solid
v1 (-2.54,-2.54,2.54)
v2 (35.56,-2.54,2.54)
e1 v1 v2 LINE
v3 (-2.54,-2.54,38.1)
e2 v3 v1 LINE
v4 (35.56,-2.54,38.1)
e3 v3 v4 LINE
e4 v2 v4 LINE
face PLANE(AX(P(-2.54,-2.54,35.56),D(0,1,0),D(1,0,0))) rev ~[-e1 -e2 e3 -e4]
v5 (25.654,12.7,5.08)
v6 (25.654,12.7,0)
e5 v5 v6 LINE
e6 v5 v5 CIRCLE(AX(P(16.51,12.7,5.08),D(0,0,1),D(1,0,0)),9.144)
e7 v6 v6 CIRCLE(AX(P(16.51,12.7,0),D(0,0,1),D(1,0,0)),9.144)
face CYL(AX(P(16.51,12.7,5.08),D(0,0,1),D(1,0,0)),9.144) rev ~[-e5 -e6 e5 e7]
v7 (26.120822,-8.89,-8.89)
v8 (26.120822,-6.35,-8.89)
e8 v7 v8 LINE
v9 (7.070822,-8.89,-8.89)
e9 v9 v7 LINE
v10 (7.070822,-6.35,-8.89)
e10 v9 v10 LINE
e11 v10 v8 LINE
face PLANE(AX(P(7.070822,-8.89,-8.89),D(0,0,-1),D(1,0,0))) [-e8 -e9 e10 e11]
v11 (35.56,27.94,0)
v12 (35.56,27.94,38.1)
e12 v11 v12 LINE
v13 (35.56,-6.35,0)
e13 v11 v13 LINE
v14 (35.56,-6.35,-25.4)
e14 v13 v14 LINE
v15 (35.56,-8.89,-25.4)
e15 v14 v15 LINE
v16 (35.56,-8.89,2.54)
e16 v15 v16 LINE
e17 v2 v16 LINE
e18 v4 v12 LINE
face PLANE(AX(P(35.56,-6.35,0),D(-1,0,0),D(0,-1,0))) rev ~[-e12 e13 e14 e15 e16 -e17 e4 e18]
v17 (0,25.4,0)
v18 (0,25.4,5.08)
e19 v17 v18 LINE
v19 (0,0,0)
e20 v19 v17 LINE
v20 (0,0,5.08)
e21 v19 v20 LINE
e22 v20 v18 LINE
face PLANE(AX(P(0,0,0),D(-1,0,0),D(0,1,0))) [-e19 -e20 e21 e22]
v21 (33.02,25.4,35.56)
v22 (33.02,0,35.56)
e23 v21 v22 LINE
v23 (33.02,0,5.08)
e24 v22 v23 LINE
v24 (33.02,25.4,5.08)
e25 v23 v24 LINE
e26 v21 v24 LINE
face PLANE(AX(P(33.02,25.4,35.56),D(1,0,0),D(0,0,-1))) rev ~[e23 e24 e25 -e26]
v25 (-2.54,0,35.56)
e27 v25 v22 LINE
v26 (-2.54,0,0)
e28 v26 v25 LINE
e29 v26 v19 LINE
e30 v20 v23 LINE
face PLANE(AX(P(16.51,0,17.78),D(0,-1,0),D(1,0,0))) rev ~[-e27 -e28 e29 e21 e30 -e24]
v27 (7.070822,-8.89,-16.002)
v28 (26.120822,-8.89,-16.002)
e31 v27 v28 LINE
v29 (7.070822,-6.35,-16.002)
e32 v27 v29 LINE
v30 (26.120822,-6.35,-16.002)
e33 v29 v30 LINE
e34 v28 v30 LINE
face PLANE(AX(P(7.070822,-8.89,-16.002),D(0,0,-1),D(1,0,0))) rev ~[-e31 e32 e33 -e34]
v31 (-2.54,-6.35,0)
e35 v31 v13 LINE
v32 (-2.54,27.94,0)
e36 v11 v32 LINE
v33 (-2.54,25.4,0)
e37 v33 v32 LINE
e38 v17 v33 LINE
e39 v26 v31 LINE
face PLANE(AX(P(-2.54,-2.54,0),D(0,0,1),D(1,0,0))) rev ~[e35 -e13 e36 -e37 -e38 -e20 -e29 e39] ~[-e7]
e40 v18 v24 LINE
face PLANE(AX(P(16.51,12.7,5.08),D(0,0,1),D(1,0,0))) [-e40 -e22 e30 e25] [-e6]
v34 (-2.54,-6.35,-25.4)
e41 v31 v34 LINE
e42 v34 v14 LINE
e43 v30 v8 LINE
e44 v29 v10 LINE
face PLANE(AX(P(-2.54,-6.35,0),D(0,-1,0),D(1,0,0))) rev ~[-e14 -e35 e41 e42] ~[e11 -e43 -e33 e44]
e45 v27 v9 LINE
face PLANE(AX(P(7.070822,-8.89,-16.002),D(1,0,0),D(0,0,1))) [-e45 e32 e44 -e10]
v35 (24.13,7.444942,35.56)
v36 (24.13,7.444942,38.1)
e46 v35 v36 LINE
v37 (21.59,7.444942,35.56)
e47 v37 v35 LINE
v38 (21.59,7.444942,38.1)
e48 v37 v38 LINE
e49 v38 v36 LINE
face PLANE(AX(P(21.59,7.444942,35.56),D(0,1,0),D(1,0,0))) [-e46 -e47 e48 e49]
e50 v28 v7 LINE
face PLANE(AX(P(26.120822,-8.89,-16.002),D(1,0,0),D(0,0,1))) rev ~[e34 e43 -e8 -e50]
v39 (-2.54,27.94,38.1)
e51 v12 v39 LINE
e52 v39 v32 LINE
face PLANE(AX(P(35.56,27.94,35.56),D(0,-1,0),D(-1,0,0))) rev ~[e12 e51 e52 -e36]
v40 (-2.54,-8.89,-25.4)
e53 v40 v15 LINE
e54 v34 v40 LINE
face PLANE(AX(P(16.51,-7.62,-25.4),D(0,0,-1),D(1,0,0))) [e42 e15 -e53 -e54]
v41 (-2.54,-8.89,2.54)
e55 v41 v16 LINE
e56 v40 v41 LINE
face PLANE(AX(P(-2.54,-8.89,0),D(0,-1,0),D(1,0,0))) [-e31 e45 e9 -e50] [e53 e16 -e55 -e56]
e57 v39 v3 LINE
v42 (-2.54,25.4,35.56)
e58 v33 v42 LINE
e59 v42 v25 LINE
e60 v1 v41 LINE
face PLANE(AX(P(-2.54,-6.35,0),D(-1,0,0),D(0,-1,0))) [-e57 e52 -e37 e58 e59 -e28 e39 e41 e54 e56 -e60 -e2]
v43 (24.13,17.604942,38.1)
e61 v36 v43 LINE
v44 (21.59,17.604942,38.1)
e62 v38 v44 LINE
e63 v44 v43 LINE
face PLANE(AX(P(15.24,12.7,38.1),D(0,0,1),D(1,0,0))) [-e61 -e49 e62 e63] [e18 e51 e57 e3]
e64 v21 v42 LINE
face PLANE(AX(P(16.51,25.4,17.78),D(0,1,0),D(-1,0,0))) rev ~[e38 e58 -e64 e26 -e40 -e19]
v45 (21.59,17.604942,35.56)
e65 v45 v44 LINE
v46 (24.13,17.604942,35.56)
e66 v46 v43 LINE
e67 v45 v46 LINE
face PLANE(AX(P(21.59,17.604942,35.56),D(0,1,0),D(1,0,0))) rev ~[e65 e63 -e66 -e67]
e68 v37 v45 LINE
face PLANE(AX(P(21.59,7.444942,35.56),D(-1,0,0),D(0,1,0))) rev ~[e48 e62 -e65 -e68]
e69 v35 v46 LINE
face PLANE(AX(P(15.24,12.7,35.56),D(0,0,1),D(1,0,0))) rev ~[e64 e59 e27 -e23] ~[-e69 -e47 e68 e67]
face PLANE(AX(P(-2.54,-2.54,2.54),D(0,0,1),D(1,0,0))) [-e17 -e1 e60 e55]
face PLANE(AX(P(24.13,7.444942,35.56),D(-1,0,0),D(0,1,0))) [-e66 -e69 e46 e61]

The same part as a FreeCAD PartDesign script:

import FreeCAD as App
import Part
import Sketcher
from FreeCAD import Vector
Q = App.Units.Quantity

doc = App.newDocument("Part")
params = doc.addObject("Spreadsheet::Sheet", "Params")
for row, (alias, value) in enumerate([
    ("sketch1_height", "1 in"),
    ("sketch1_width", "1.3 in"),
    ("pad1_length", "0.2 in"),
    ("sketch2_diameter", "0.72 in"),
    ("sketch3_width", "1.5 in"),
    ("sketch3_height", "1.4 in"),
    ("pad2_length", "0.1 in"),
    ("sketch4_width", "1.5 in"),
    ("sketch4_height", "1.4 in"),
    ("pad3_length", "0.1 in"),
    ("sketch5_width", "0.1 in"),
    ("sketch5_height", "1.4 in"),
    ("sketch6_width", "1.5 in"),
    ("sketch6_width2", "0.1 in"),
    ("sketch6_height", "1.2 in"),
    ("sketch6_height2", "0.4 in"),
    ("pad5_length", "0.1 in"),
    ("sketch7_width", "1.5 in"),
    ("sketch7_height", "0.1 in"),
    ("pad6_length", "0.25 in"),
    ("sketch8_width", "1.5 in"),
    ("sketch8_height", "0.1 in"),
    ("pad7_length", "1 in"),
    ("sketch9_width", "0.75 in"),
    ("sketch9_height", "0.28 in"),
    ("pocket2_length", "1 in"),
], start=1):
    params.set(f"A{row}", alias)
    params.set(f"B{row}", "=" + value)
    params.setAlias(f"B{row}", alias)

body = doc.addObject("PartDesign::Body", "Body")

sketch1 = body.newObject("Sketcher::SketchObject", "Sketch")
sketch1.AttachmentSupport = (doc.getObject("XY_Plane"), [""])
sketch1.MapMode = "FlatFace"
sketch1.addGeometry([
    Part.LineSegment(Vector(0, 25, 0), Vector(0, 0, 0)),
    Part.LineSegment(Vector(0, 0, 0), Vector(33, 0, 0)),
    Part.LineSegment(Vector(33, 0, 0), Vector(33, 25, 0)),
    Part.LineSegment(Vector(33, 25, 0), Vector(0, 25, 0)),
], False)
sketch1.addConstraint([
    Sketcher.Constraint("Coincident", 0, 2, 1, 1),
    Sketcher.Constraint("Coincident", 1, 2, 2, 1),
    Sketcher.Constraint("Coincident", 2, 2, 3, 1),
    Sketcher.Constraint("Coincident", 3, 2, 0, 1),
    Sketcher.Constraint("Vertical", 0),
    Sketcher.Constraint("Horizontal", 1),
    Sketcher.Constraint("Vertical", 2),
    Sketcher.Constraint("Horizontal", 3),
    Sketcher.Constraint("Coincident", 0, 2, -1, 1),
    Sketcher.Constraint("DistanceY", 0, 2, 0, 1, Q("1 in")),
    Sketcher.Constraint("DistanceX", 1, 1, 1, 2, Q("1.3 in")),
])
sketch1.setExpression("Constraints[9]", "Params.sketch1_height")
sketch1.setExpression("Constraints[10]", "Params.sketch1_width")
pad1 = body.newObject("PartDesign::Pad", "Pad")
pad1.Profile = sketch1
pad1.setExpression("Length", "Params.pad1_length")

sketch2 = body.newObject("Sketcher::SketchObject", "Sketch001")
sketch2.AttachmentSupport = (doc.getObject("XY_Plane"), [""])
sketch2.MapMode = "FlatFace"
sketch2.AttachmentOffset = App.Placement(Vector(0, 0, 0.2 * 25.4), App.Rotation())
sketch2.addGeometry(Part.Circle(Vector(17, 13, 0), Vector(0, 0, 1), 9), False)
sketch2.addConstraint([
    Sketcher.Constraint("Diameter", 0, Q("0.72 in")),
    Sketcher.Constraint("DistanceY", -1, 1, 0, 3, Q("0.5 in")),
    Sketcher.Constraint("DistanceX", -1, 1, 0, 3, Q("0.65 in")),
])
sketch2.setExpression("Constraints[0]", "Params.sketch2_diameter")
pocket1 = body.newObject("PartDesign::Pocket", "Pocket")
pocket1.Profile = sketch2
pocket1.Type = "ThroughAll"

sketch3 = body.newObject("Sketcher::SketchObject", "Sketch002")
sketch3.AttachmentSupport = (doc.getObject("XZ_Plane"), [""])
sketch3.MapMode = "FlatFace"
sketch3.addGeometry([
    Part.LineSegment(Vector(-3, 36, 0), Vector(-3, 0, 0)),
    Part.LineSegment(Vector(-3, 0, 0), Vector(36, 0, 0)),
    Part.LineSegment(Vector(36, 0, 0), Vector(36, 36, 0)),
    Part.LineSegment(Vector(36, 36, 0), Vector(-3, 36, 0)),
], False)
sketch3.addConstraint([
    Sketcher.Constraint("Coincident", 0, 2, 1, 1),
    Sketcher.Constraint("Coincident", 1, 2, 2, 1),
    Sketcher.Constraint("Coincident", 2, 2, 3, 1),
    Sketcher.Constraint("Coincident", 3, 2, 0, 1),
    Sketcher.Constraint("Vertical", 0),
    Sketcher.Constraint("Horizontal", 1),
    Sketcher.Constraint("Vertical", 2),
    Sketcher.Constraint("Horizontal", 3),
    Sketcher.Constraint("PointOnObject", 0, 2, -1),
    Sketcher.Constraint("DistanceX", 1, 1, 1, 2, Q("1.5 in")),
    Sketcher.Constraint("DistanceY", 0, 2, 0, 1, Q("1.4 in")),
    Sketcher.Constraint("DistanceX", 0, 2, -1, 1, Q("0.1 in")),
])
sketch3.setExpression("Constraints[9]", "Params.sketch3_width")
sketch3.setExpression("Constraints[10]", "Params.sketch3_height")
pad2 = body.newObject("PartDesign::Pad", "Pad001")
pad2.Profile = sketch3
pad2.setExpression("Length", "Params.pad2_length")

sketch4 = body.newObject("Sketcher::SketchObject", "Sketch003")
sketch4.AttachmentSupport = (doc.getObject("XZ_Plane"), [""])
sketch4.MapMode = "FlatFace"
sketch4.AttachmentOffset = App.Placement(Vector(0, 0, -1 * 25.4), App.Rotation())
sketch4.addGeometry([
    Part.LineSegment(Vector(36, 36, 0), Vector(36, 0, 0)),
    Part.LineSegment(Vector(36, 0, 0), Vector(-3, 0, 0)),
    Part.LineSegment(Vector(-3, 0, 0), Vector(-3, 36, 0)),
    Part.LineSegment(Vector(-3, 36, 0), Vector(36, 36, 0)),
], False)
sketch4.addConstraint([
    Sketcher.Constraint("Coincident", 0, 2, 1, 1),
    Sketcher.Constraint("Coincident", 1, 2, 2, 1),
    Sketcher.Constraint("Coincident", 2, 2, 3, 1),
    Sketcher.Constraint("Coincident", 3, 2, 0, 1),
    Sketcher.Constraint("Vertical", 0),
    Sketcher.Constraint("Horizontal", 1),
    Sketcher.Constraint("Vertical", 2),
    Sketcher.Constraint("Horizontal", 3),
    Sketcher.Constraint("PointOnObject", 0, 2, -1),
    Sketcher.Constraint("DistanceX", 1, 2, 1, 1, Q("1.5 in")),
    Sketcher.Constraint("DistanceY", 0, 2, 0, 1, Q("1.4 in")),
    Sketcher.Constraint("DistanceX", -1, 1, 0, 2, Q("1.4 in")),
])
sketch4.setExpression("Constraints[9]", "Params.sketch4_width")
sketch4.setExpression("Constraints[10]", "Params.sketch4_height")
pad3 = body.newObject("PartDesign::Pad", "Pad002")
pad3.Profile = sketch4
pad3.setExpression("Length", "Params.pad3_length")
pad3.Reversed = True

sketch5 = body.newObject("Sketcher::SketchObject", "Sketch004")
sketch5.AttachmentSupport = (doc.getObject("XZ_Plane"), [""])
sketch5.MapMode = "FlatFace"
sketch5.AttachmentOffset = App.Placement(Vector(0, 0, -1 * 25.4), App.Rotation())
sketch5.addGeometry([
    Part.LineSegment(Vector(35.6, 0, 0), Vector(35.6, 35.6, 0)),
    Part.LineSegment(Vector(35.6, 35.6, 0), Vector(33, 35.6, 0)),
    Part.LineSegment(Vector(33, 35.6, 0), Vector(33, 0, 0)),
    Part.LineSegment(Vector(33, 0, 0), Vector(35.6, 0, 0)),
], False)
sketch5.addConstraint([
    Sketcher.Constraint("Coincident", 0, 2, 1, 1),
    Sketcher.Constraint("Coincident", 1, 2, 2, 1),
    Sketcher.Constraint("Coincident", 2, 2, 3, 1),
    Sketcher.Constraint("Coincident", 3, 2, 0, 1),
    Sketcher.Constraint("Vertical", 0),
    Sketcher.Constraint("Horizontal", 1),
    Sketcher.Constraint("Vertical", 2),
    Sketcher.Constraint("Horizontal", 3),
    Sketcher.Constraint("PointOnObject", 2, 2, -1),
    Sketcher.Constraint("DistanceX", 1, 2, 1, 1, Q("0.1 in")),
    Sketcher.Constraint("DistanceY", 0, 1, 0, 2, Q("1.4 in")),
    Sketcher.Constraint("DistanceX", -1, 1, 0, 2, Q("1.4 in")),
])
sketch5.setExpression("Constraints[9]", "Params.sketch5_width")
sketch5.setExpression("Constraints[10]", "Params.sketch5_height")
pad4 = body.newObject("PartDesign::Pad", "Pad003")
pad4.Profile = sketch5
pad4.Type = "UpToLast"

sketch6 = body.newObject("Sketcher::SketchObject", "Sketch005")
sketch6.AttachmentSupport = (doc.getObject("XY_Plane"), [""])
sketch6.MapMode = "FlatFace"
sketch6.AttachmentOffset = App.Placement(Vector(0, 0, 1.4 * 25.4), App.Rotation())
sketch6.addGeometry([
    Part.LineSegment(Vector(-2.5, -2.5, 0), Vector(35.6, -2.5, 0)),
    Part.LineSegment(Vector(35.6, -2.5, 0), Vector(35.6, 27.9, 0)),
    Part.LineSegment(Vector(35.6, 27.9, 0), Vector(-2.5, 27.9, 0)),
    Part.LineSegment(Vector(-2.5, 27.9, 0), Vector(-2.5, -2.5, 0)),
    Part.LineSegment(Vector(24.1, 7.4, 0), Vector(21.6, 7.4, 0)),
    Part.LineSegment(Vector(21.6, 7.4, 0), Vector(21.6, 17.6, 0)),
    Part.LineSegment(Vector(21.6, 17.6, 0), Vector(24.1, 17.6, 0)),
    Part.LineSegment(Vector(24.1, 17.6, 0), Vector(24.1, 7.4, 0)),
], False)
sketch6.addConstraint([
    Sketcher.Constraint("Coincident", 0, 2, 1, 1),
    Sketcher.Constraint("Coincident", 1, 2, 2, 1),
    Sketcher.Constraint("Coincident", 2, 2, 3, 1),
    Sketcher.Constraint("Coincident", 3, 2, 0, 1),
    Sketcher.Constraint("Coincident", 4, 2, 5, 1),
    Sketcher.Constraint("Coincident", 5, 2, 6, 1),
    Sketcher.Constraint("Coincident", 6, 2, 7, 1),
    Sketcher.Constraint("Coincident", 7, 2, 4, 1),
    Sketcher.Constraint("Horizontal", 0),
    Sketcher.Constraint("Vertical", 1),
    Sketcher.Constraint("Horizontal", 2),
    Sketcher.Constraint("Vertical", 3),
    Sketcher.Constraint("Horizontal", 4),
    Sketcher.Constraint("Vertical", 5),
    Sketcher.Constraint("Horizontal", 6),
    Sketcher.Constraint("Vertical", 7),
    Sketcher.Constraint("DistanceX", 0, 1, 0, 2, Q("1.5 in")),
    Sketcher.Constraint("DistanceX", 4, 2, 4, 1, Q("0.1 in")),
    Sketcher.Constraint("DistanceY", 1, 1, 1, 2, Q("1.2 in")),
    Sketcher.Constraint("DistanceY", 5, 1, 5, 2, Q("0.4 in")),
    Sketcher.Constraint("DistanceX", -1, 1, 0, 2, Q("1.4 in")),
    Sketcher.Constraint("DistanceY", 0, 2, -1, 1, Q("0.1 in")),
    Sketcher.Constraint("DistanceX", -1, 1, 4, 2, Q("0.85 in")),
    Sketcher.Constraint("DistanceY", -1, 1, 4, 2, 7.444942),
])
sketch6.setExpression("Constraints[16]", "Params.sketch6_width")
sketch6.setExpression("Constraints[17]", "Params.sketch6_width2")
sketch6.setExpression("Constraints[18]", "Params.sketch6_height")
sketch6.setExpression("Constraints[19]", "Params.sketch6_height2")
pad5 = body.newObject("PartDesign::Pad", "Pad004")
pad5.Profile = sketch6
pad5.setExpression("Length", "Params.pad5_length")

sketch7 = body.newObject("Sketcher::SketchObject", "Sketch006")
sketch7.AttachmentSupport = (doc.getObject("XZ_Plane"), [""])
sketch7.MapMode = "FlatFace"
sketch7.AttachmentOffset = App.Placement(Vector(0, 0, 0.1 * 25.4), App.Rotation())
sketch7.addGeometry([
    Part.LineSegment(Vector(-2.5, 2.5, 0), Vector(-2.5, 0, 0)),
    Part.LineSegment(Vector(-2.5, 0, 0), Vector(35.6, 0, 0)),
    Part.LineSegment(Vector(35.6, 0, 0), Vector(35.6, 2.5, 0)),
    Part.LineSegment(Vector(35.6, 2.5, 0), Vector(-2.5, 2.5, 0)),
], False)
sketch7.addConstraint([
    Sketcher.Constraint("Coincident", 0, 2, 1, 1),
    Sketcher.Constraint("Coincident", 1, 2, 2, 1),
    Sketcher.Constraint("Coincident", 2, 2, 3, 1),
    Sketcher.Constraint("Coincident", 3, 2, 0, 1),
    Sketcher.Constraint("Vertical", 0),
    Sketcher.Constraint("Horizontal", 1),
    Sketcher.Constraint("Vertical", 2),
    Sketcher.Constraint("Horizontal", 3),
    Sketcher.Constraint("PointOnObject", 0, 2, -1),
    Sketcher.Constraint("DistanceX", 1, 1, 1, 2, Q("1.5 in")),
    Sketcher.Constraint("DistanceY", 0, 2, 0, 1, Q("0.1 in")),
    Sketcher.Constraint("DistanceX", 0, 2, -1, 1, Q("0.1 in")),
])
sketch7.setExpression("Constraints[9]", "Params.sketch7_width")
sketch7.setExpression("Constraints[10]", "Params.sketch7_height")
pad6 = body.newObject("PartDesign::Pad", "Pad005")
pad6.Profile = sketch7
pad6.setExpression("Length", "Params.pad6_length")

sketch8 = body.newObject("Sketcher::SketchObject", "Sketch007")
sketch8.AttachmentSupport = (doc.getObject("XY_Plane"), [""])
sketch8.MapMode = "FlatFace"
sketch8.addGeometry([
    Part.LineSegment(Vector(-2.5, -8.9, 0), Vector(-2.5, -6.3, 0)),
    Part.LineSegment(Vector(-2.5, -6.3, 0), Vector(35.6, -6.3, 0)),
    Part.LineSegment(Vector(35.6, -6.3, 0), Vector(35.6, -8.9, 0)),
    Part.LineSegment(Vector(35.6, -8.9, 0), Vector(-2.5, -8.9, 0)),
], False)
sketch8.addConstraint([
    Sketcher.Constraint("Coincident", 0, 2, 1, 1),
    Sketcher.Constraint("Coincident", 1, 2, 2, 1),
    Sketcher.Constraint("Coincident", 2, 2, 3, 1),
    Sketcher.Constraint("Coincident", 3, 2, 0, 1),
    Sketcher.Constraint("Vertical", 0),
    Sketcher.Constraint("Horizontal", 1),
    Sketcher.Constraint("Vertical", 2),
    Sketcher.Constraint("Horizontal", 3),
    Sketcher.Constraint("DistanceX", 1, 1, 1, 2, Q("1.5 in")),
    Sketcher.Constraint("DistanceY", 0, 1, 0, 2, Q("0.1 in")),
    Sketcher.Constraint("DistanceX", 0, 2, -1, 1, Q("0.1 in")),
    Sketcher.Constraint("DistanceY", 0, 2, -1, 1, Q("0.25 in")),
])
sketch8.setExpression("Constraints[8]", "Params.sketch8_width")
sketch8.setExpression("Constraints[9]", "Params.sketch8_height")
pad7 = body.newObject("PartDesign::Pad", "Pad006")
pad7.Profile = sketch8
pad7.setExpression("Length", "Params.pad7_length")
pad7.Reversed = True

sketch9 = body.newObject("Sketcher::SketchObject", "Sketch008")
sketch9.AttachmentSupport = (doc.getObject("XZ_Plane"), [""])
sketch9.MapMode = "FlatFace"
sketch9.AttachmentOffset = App.Placement(Vector(0, 0, 0.35 * 25.4), App.Rotation())
sketch9.addGeometry([
    Part.LineSegment(Vector(7, -9, 0), Vector(7, -16, 0)),
    Part.LineSegment(Vector(7, -16, 0), Vector(26, -16, 0)),
    Part.LineSegment(Vector(26, -16, 0), Vector(26, -9, 0)),
    Part.LineSegment(Vector(26, -9, 0), Vector(7, -9, 0)),
], False)
sketch9.addConstraint([
    Sketcher.Constraint("Coincident", 0, 2, 1, 1),
    Sketcher.Constraint("Coincident", 1, 2, 2, 1),
    Sketcher.Constraint("Coincident", 2, 2, 3, 1),
    Sketcher.Constraint("Coincident", 3, 2, 0, 1),
    Sketcher.Constraint("Vertical", 0),
    Sketcher.Constraint("Horizontal", 1),
    Sketcher.Constraint("Vertical", 2),
    Sketcher.Constraint("Horizontal", 3),
    Sketcher.Constraint("DistanceX", 1, 1, 1, 2, Q("0.75 in")),
    Sketcher.Constraint("DistanceY", 0, 2, 0, 1, Q("0.28 in")),
    Sketcher.Constraint("DistanceY", 0, 2, -1, 1, Q("0.63 in")),
    Sketcher.Constraint("DistanceX", -1, 1, 0, 2, 7.070822),
])
sketch9.setExpression("Constraints[8]", "Params.sketch9_width")
sketch9.setExpression("Constraints[9]", "Params.sketch9_height")
pocket2 = body.newObject("PartDesign::Pocket", "Pocket001")
pocket2.Profile = sketch9
pocket2.setExpression("Length", "Params.pocket2_length")

doc.recompute()
